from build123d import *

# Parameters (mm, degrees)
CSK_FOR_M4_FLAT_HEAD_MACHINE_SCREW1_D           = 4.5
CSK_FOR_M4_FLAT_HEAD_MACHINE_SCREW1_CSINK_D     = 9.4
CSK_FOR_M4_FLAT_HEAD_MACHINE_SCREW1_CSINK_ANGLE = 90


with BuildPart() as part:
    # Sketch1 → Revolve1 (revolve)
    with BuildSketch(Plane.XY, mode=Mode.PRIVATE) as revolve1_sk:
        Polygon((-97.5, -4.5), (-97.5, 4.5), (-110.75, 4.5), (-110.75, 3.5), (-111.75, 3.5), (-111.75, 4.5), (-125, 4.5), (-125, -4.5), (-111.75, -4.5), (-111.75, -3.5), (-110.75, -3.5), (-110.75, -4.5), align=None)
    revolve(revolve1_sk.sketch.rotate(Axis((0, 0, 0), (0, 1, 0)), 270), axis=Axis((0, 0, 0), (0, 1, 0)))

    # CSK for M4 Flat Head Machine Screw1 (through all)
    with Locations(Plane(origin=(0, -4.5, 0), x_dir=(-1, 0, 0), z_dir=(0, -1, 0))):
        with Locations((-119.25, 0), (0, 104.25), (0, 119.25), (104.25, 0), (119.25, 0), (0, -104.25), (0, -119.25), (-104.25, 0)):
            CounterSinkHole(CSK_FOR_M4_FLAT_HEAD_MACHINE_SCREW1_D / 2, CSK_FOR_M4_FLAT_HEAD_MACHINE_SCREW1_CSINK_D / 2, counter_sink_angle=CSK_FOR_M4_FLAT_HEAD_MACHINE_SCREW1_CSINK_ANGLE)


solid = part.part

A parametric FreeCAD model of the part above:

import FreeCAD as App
import Part
import Sketcher


def add_polygon(sketch, points):
    """Adds a closed chain of lines whose ends are joined by coincident constraints."""
    first, n = sketch.GeometryCount, len(points)
    for a, b in zip(points, points[1:] + points[:1]):
        sketch.addGeometry(Part.LineSegment(App.Vector(*a, 0), App.Vector(*b, 0)), False)
    for i in range(n):
        sketch.addConstraint(Sketcher.Constraint("Coincident", first + i, 2, first + (i + 1) % n, 1))

doc = App.newDocument("Part")
body = doc.addObject("PartDesign::Body", "Body")

# Sketch on XY plane
sketch1 = body.newObject("Sketcher::SketchObject", "Sketch")
sketch1.AttachmentSupport = (doc.getObject("XY_Plane"), [""])
sketch1.MapMode = "FlatFace"
add_polygon(sketch1, [(-97.5, -4.5), (-97.5, 4.5), (-110.8, 4.5), (-110.8, 3.5), (-111.8, 3.5), (-111.8, 4.5), (-125, 4.5), (-125, -4.5), (-111.8, -4.5), (-111.8, -3.5), (-110.8, -3.5), (-110.8, -4.5)])  # lines 0-11
sketch1.addConstraint(Sketcher.Constraint("Vertical", 0))
sketch1.addConstraint(Sketcher.Constraint("Horizontal", 1))
sketch1.addConstraint(Sketcher.Constraint("Vertical", 2))
sketch1.addConstraint(Sketcher.Constraint("Horizontal", 3))
sketch1.addConstraint(Sketcher.Constraint("Vertical", 4))
sketch1.addConstraint(Sketcher.Constraint("Horizontal", 5))
sketch1.addConstraint(Sketcher.Constraint("Vertical", 6))
sketch1.addConstraint(Sketcher.Constraint("Horizontal", 7))
sketch1.addConstraint(Sketcher.Constraint("Vertical", 8))
sketch1.addConstraint(Sketcher.Constraint("Horizontal", 9))
sketch1.addConstraint(Sketcher.Constraint("Vertical", 10))
sketch1.addConstraint(Sketcher.Constraint("Horizontal", 11))
sketch1.addConstraint(Sketcher.Constraint("Symmetric", 4, 2, 7, 2, -1))
sketch1.addConstraint(Sketcher.Constraint("Symmetric", 2, 2, 9, 2, -1))
sketch1.addConstraint(Sketcher.Constraint("Horizontal", 1, 2, 4, 2))
sketch1.addConstraint(Sketcher.Constraint("Horizontal", 7, 2, 10, 2))
sketch1.addConstraint(Sketcher.Constraint("Equal", 1, 5))
sketch1.addConstraint(Sketcher.Constraint("Equal", 9, 2))
sketch1.addConstraint(Sketcher.Constraint("DistanceX", 3, 2, 3, 1, 1.0))
sketch1.addConstraint(Sketcher.Constraint("DistanceY", 0, 1, 0, 2, 9.0))
sketch1.addConstraint(Sketcher.Constraint("DistanceX", 5, 2, -1, 1, 125.0))
sketch1.addConstraint(Sketcher.Constraint("DistanceX", 1, 2, 1, 1, 13.25))
revolution = body.newObject("PartDesign::Revolution", "Revolution")
revolution.Profile = sketch1
revolution.ReferenceAxis = (sketch1, ["V_Axis"])
revolution.Angle = 360

# Sketch on XZ plane
sketch2 = body.newObject("Sketcher::SketchObject", "Sketch001")
sketch2.AttachmentSupport = (doc.getObject("XZ_Plane"), [""])
sketch2.MapMode = "FlatFace"
sketch2.AttachmentOffset = App.Placement(App.Vector(0, 0, 4.5), App.Rotation())
sketch2.addGeometry(Part.Circle(App.Vector(119.2, 0, 0), App.Vector(0, 0, 1), 2.2), False)
sketch2.addGeometry(Part.Circle(App.Vector(0, -104.2, 0), App.Vector(0, 0, 1), 2.2), False)
sketch2.addGeometry(Part.Circle(App.Vector(0, -119.2, 0), App.Vector(0, 0, 1), 2.2), False)
sketch2.addGeometry(Part.Circle(App.Vector(-104.2, 0, 0), App.Vector(0, 0, 1), 2.2), False)
sketch2.addGeometry(Part.Circle(App.Vector(-119.2, 0, 0), App.Vector(0, 0, 1), 2.2), False)
sketch2.addGeometry(Part.Circle(App.Vector(0, 104.2, 0), App.Vector(0, 0, 1), 2.2), False)
sketch2.addGeometry(Part.Circle(App.Vector(0, 119.2, 0), App.Vector(0, 0, 1), 2.2), False)
sketch2.addGeometry(Part.Circle(App.Vector(104.2, 0, 0), App.Vector(0, 0, 1), 2.2), False)
sketch2.addConstraint(Sketcher.Constraint("Equal", 0, 1))
sketch2.addConstraint(Sketcher.Constraint("Equal", 1, 2))
sketch2.addConstraint(Sketcher.Constraint("Equal", 2, 3))
sketch2.addConstraint(Sketcher.Constraint("Equal", 3, 4))
sketch2.addConstraint(Sketcher.Constraint("Equal", 4, 5))
sketch2.addConstraint(Sketcher.Constraint("Equal", 5, 6))
sketch2.addConstraint(Sketcher.Constraint("Equal", 6, 7))
sketch2.addConstraint(Sketcher.Constraint("Symmetric", 0, 3, 4, 3, -1, 1))
sketch2.addConstraint(Sketcher.Constraint("Symmetric", 1, 3, 5, 3, -1, 1))
sketch2.addConstraint(Sketcher.Constraint("Symmetric", 2, 3, 6, 3, -1, 1))
sketch2.addConstraint(Sketcher.Constraint("Symmetric", 3, 3, 7, 3, -1, 1))
sketch2.addConstraint(Sketcher.Constraint("PointOnObject", 0, 3, -1))
sketch2.addConstraint(Sketcher.Constraint("PointOnObject", 1, 3, -2))
sketch2.addConstraint(Sketcher.Constraint("PointOnObject", 2, 3, -2))
sketch2.addConstraint(Sketcher.Constraint("PointOnObject", 3, 3, -1))
sketch2.addConstraint(Sketcher.Constraint("Diameter", 0, 4.5))
sketch2.addConstraint(Sketcher.Constraint("DistanceY", 2, 3, 1, 3, 15.0))
sketch2.addConstraint(Sketcher.Constraint("DistanceX", 4, 3, 3, 3, 15.0))
sketch2.addConstraint(Sketcher.Constraint("DistanceX", 3, 3, 0, 3, 223.5))
sketch2.addConstraint(Sketcher.Constraint("DistanceY", 1, 3, 5, 3, 208.5))
doc.recompute()
hole = body.newObject("PartDesign::Hole", "Hole")
hole.Profile = sketch2
hole.ThreadType = "None"
hole.Diameter = 4.5
hole.DepthType = "ThroughAll"
hole.HoleCutType = "Countersink"
hole.HoleCutDiameter = 9.4
hole.HoleCutCountersinkAngle = 90

doc.recompute()
